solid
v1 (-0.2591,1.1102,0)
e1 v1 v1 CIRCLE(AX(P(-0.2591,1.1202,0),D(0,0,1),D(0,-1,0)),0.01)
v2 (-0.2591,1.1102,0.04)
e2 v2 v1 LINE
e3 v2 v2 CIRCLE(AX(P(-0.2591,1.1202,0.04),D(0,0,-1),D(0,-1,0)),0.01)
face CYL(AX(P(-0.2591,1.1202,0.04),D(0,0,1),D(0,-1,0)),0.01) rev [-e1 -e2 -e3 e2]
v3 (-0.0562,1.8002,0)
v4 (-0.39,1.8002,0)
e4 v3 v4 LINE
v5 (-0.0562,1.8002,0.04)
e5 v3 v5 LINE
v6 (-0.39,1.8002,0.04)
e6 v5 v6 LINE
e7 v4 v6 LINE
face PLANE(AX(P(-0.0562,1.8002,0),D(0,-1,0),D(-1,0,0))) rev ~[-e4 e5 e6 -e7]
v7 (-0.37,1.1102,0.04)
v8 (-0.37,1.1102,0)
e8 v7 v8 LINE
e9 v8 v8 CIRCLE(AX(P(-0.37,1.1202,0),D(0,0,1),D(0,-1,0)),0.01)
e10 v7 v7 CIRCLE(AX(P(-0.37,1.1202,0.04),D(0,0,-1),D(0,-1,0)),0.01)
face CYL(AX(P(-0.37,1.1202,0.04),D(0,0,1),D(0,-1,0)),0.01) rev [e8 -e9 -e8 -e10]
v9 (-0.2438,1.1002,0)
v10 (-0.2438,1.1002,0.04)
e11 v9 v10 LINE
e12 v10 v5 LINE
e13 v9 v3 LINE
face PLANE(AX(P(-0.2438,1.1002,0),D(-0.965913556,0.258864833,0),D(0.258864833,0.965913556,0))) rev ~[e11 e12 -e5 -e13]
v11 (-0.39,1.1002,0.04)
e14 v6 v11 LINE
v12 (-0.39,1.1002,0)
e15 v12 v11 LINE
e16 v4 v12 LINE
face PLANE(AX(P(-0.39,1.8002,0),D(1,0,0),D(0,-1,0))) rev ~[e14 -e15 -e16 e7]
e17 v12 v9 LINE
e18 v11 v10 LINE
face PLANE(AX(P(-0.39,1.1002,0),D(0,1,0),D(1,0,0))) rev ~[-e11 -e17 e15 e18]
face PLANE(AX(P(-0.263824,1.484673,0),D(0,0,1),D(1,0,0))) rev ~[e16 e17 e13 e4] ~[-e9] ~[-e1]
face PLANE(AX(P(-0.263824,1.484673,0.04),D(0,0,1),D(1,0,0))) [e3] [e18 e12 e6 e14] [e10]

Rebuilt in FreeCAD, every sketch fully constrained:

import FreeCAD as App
import Part
import Sketcher
from FreeCAD import Vector

doc = App.newDocument("Part")
params = doc.addObject("Spreadsheet::Sheet", "Params")
for row, (alias, value) in enumerate([
    ("sketch1_height", "0.7 mm"),
    ("pad1_length", "0.04 mm"),
    ("sketch2_diameter", "0.02 mm"),
    ("hole_diameter", "0.02 mm"),
    ("sketch3_diameter", "0.02 mm"),
    ("hole2_diameter", "0.02 mm"),
], start=1):
    params.set(f"A{row}", alias)
    params.set(f"B{row}", "=" + value)
    params.setAlias(f"B{row}", alias)

body = doc.addObject("PartDesign::Body", "Body")

sketch1 = doc.addObject("Sketcher::SketchObject", "Sketch")
body.addObject(sketch1)
sketch1.AttachmentSupport = (doc.XY_Plane, [""])
sketch1.MapMode = "FlatFace"
sketch1.addGeometry(Part.LineSegment(Vector(-0.39, 1.1, 0), Vector(-0.24, 1.1, 0)), False)
sketch1.addGeometry(Part.LineSegment(Vector(-0.24, 1.1, 0), Vector(-0.06, 1.8, 0)), False)
sketch1.addGeometry(Part.LineSegment(Vector(-0.06, 1.8, 0), Vector(-0.39, 1.8, 0)), False)
sketch1.addGeometry(Part.LineSegment(Vector(-0.39, 1.8, 0), Vector(-0.39, 1.1, 0)), False)
sketch1.addConstraint(Sketcher.Constraint("Coincident", 0, 2, 1, 1))
sketch1.addConstraint(Sketcher.Constraint("Coincident", 1, 2, 2, 1))
sketch1.addConstraint(Sketcher.Constraint("Coincident", 2, 2, 3, 1))
sketch1.addConstraint(Sketcher.Constraint("Coincident", 3, 2, 0, 1))
sketch1.addConstraint(Sketcher.Constraint("Horizontal", 0))
sketch1.addConstraint(Sketcher.Constraint("Horizontal", 2))
sketch1.addConstraint(Sketcher.Constraint("Vertical", 3))
sketch1.addConstraint(Sketcher.Constraint("DistanceY", 3, 2, 3, 1, 0.7))
sketch1.addConstraint(Sketcher.Constraint("DistanceX", 2, 2, -1, 1, 0.39))
sketch1.addConstraint(Sketcher.Constraint("DistanceX", 0, 1, 0, 2, 0.1462))
sketch1.addConstraint(Sketcher.Constraint("DistanceX", 2, 2, 2, 1, 0.3338))
sketch1.addConstraint(Sketcher.Constraint("DistanceY", -1, 1, 0, 2, 1.1002))
sketch1.setExpression("Constraints[7]", "Params.sketch1_height")
pad1 = doc.addObject("PartDesign::Pad", "Pad")
body.addObject(pad1)
pad1.Profile = sketch1
pad1.setExpression("Length", "Params.pad1_length")

sketch2 = doc.addObject("Sketcher::SketchObject", "Sketch001")
body.addObject(sketch2)
sketch2.AttachmentSupport = (doc.XY_Plane, [""])
sketch2.MapMode = "FlatFace"
sketch2.AttachmentOffset = App.Placement(Vector(0, 0, 0.04), App.Rotation())
sketch2.addGeometry(Part.Circle(Vector(-0.37, 1.12, 0), Vector(0, 0, 1), 0.01), False)
sketch2.addConstraint(Sketcher.Constraint("Diameter", 0, 0.02))
sketch2.addConstraint(Sketcher.Constraint("DistanceX", 0, 3, -1, 1, 0.37))
sketch2.addConstraint(Sketcher.Constraint("DistanceY", -1, 1, 0, 3, 1.1202))
sketch2.setExpression("Constraints[0]", "Params.sketch2_diameter")
doc.recompute()
hole = doc.addObject("PartDesign::Hole", "Hole")
body.addObject(hole)
hole.Profile = sketch2
hole.ThreadType = "None"
hole.setExpression("Diameter", "Params.hole_diameter")
hole.DepthType = "ThroughAll"

sketch3 = doc.addObject("Sketcher::SketchObject", "Sketch002")
body.addObject(sketch3)
sketch3.AttachmentSupport = (doc.XY_Plane, [""])
sketch3.MapMode = "FlatFace"
sketch3.AttachmentOffset = App.Placement(Vector(0, 0, 0.04), App.Rotation())
sketch3.addGeometry(Part.Circle(Vector(-0.259, 1.12, 0), Vector(0, 0, 1), 0.01), False)
sketch3.addConstraint(Sketcher.Constraint("Diameter", 0, 0.02))
sketch3.addConstraint(Sketcher.Constraint("DistanceX", 0, 3, -1, 1, 0.259))
sketch3.addConstraint(Sketcher.Constraint("DistanceY", -1, 1, 0, 3, 1.1202))
sketch3.setExpression("Constraints[0]", "Params.sketch3_diameter")
doc.recompute()
hole2 = doc.addObject("PartDesign::Hole", "Hole001")
body.addObject(hole2)
hole2.Profile = sketch3
hole2.ThreadType = "None"
hole2.setExpression("Diameter", "Params.hole2_diameter")
hole2.DepthType = "ThroughAll"

doc.recompute()
